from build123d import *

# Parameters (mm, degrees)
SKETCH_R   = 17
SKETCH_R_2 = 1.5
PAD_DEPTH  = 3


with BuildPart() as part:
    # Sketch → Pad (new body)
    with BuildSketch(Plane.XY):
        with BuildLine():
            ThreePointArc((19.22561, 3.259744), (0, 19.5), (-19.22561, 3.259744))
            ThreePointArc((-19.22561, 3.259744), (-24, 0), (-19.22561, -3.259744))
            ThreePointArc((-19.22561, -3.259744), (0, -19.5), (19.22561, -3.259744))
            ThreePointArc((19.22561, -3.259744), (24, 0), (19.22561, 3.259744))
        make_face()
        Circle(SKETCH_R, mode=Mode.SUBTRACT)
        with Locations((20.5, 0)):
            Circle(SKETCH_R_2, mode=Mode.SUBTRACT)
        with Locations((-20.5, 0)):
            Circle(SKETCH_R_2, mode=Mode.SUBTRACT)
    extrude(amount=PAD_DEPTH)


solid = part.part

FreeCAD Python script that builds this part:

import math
import FreeCAD as App
import Part
import Sketcher

V = App.Vector

doc = App.newDocument("Part")
body = doc.addObject("PartDesign::Body", "Body")

sketch1 = body.newObject("Sketcher::SketchObject", "Sketch")
sketch1.AttachmentSupport = (doc.getObject("XY_Plane"), [""])
sketch1.MapMode = "FlatFace"
sketch1.addGeometry([
    Part.ArcOfCircle(Part.Circle(V(0, 0, 0), V(0, 0, 1), 19.5), math.radians(10), math.radians(170)),
    Part.ArcOfCircle(Part.Circle(V(-20.5, 0, 0), V(0, 0, 1), 3.5), math.radians(69), math.radians(291)),
    Part.ArcOfCircle(Part.Circle(V(0, 0, 0), V(0, 0, 1), 19.5), math.radians(-170), math.radians(-10)),
    Part.ArcOfCircle(Part.Circle(V(20.5, 0, 0), V(0, 0, 1), 3.5), math.radians(-111), math.radians(111)),
    Part.Circle(V(-20.5, 0, 0), V(0, 0, 1), 1.5),
    Part.Circle(V(0, 0, 0), V(0, 0, 1), 17),
    Part.Circle(V(20.5, 0, 0), V(0, 0, 1), 1.5),
], False)
sketch1.addConstraint([
    Sketcher.Constraint("Coincident", 0, 2, 1, 1),
    Sketcher.Constraint("Coincident", 1, 2, 2, 1),
    Sketcher.Constraint("Coincident", 2, 2, 3, 1),
    Sketcher.Constraint("Coincident", 3, 2, 0, 1),
    Sketcher.Constraint("Coincident", 0, 3, -1, 1),
    Sketcher.Constraint("Coincident", 2, 3, -1, 1),
    Sketcher.Constraint("Coincident", 5, 3, -1, 1),
    Sketcher.Constraint("Coincident", 4, 3, 1, 3),
    Sketcher.Constraint("Coincident", 6, 3, 3, 3),
    Sketcher.Constraint("Equal", 0, 2),
    Sketcher.Constraint("Equal", 1, 3),
    Sketcher.Constraint("Equal", 4, 6),
    Sketcher.Constraint("Symmetric", 1, 3, 3, 3, -1, 1),
    Sketcher.Constraint("PointOnObject", 1, 3, -1),
    Sketcher.Constraint("Diameter", 4, 3.0),
    Sketcher.Constraint("Diameter", 5, 34.0),
    Sketcher.Constraint("Radius", 0, 19.5),
    Sketcher.Constraint("Radius", 1, 3.5),
    Sketcher.Constraint("DistanceX", 1, 3, 3, 3, 41.0),
])
pad1 = body.newObject("PartDesign::Pad", "Pad")
pad1.Profile = sketch1
pad1.Length = 3

doc.recompute()
